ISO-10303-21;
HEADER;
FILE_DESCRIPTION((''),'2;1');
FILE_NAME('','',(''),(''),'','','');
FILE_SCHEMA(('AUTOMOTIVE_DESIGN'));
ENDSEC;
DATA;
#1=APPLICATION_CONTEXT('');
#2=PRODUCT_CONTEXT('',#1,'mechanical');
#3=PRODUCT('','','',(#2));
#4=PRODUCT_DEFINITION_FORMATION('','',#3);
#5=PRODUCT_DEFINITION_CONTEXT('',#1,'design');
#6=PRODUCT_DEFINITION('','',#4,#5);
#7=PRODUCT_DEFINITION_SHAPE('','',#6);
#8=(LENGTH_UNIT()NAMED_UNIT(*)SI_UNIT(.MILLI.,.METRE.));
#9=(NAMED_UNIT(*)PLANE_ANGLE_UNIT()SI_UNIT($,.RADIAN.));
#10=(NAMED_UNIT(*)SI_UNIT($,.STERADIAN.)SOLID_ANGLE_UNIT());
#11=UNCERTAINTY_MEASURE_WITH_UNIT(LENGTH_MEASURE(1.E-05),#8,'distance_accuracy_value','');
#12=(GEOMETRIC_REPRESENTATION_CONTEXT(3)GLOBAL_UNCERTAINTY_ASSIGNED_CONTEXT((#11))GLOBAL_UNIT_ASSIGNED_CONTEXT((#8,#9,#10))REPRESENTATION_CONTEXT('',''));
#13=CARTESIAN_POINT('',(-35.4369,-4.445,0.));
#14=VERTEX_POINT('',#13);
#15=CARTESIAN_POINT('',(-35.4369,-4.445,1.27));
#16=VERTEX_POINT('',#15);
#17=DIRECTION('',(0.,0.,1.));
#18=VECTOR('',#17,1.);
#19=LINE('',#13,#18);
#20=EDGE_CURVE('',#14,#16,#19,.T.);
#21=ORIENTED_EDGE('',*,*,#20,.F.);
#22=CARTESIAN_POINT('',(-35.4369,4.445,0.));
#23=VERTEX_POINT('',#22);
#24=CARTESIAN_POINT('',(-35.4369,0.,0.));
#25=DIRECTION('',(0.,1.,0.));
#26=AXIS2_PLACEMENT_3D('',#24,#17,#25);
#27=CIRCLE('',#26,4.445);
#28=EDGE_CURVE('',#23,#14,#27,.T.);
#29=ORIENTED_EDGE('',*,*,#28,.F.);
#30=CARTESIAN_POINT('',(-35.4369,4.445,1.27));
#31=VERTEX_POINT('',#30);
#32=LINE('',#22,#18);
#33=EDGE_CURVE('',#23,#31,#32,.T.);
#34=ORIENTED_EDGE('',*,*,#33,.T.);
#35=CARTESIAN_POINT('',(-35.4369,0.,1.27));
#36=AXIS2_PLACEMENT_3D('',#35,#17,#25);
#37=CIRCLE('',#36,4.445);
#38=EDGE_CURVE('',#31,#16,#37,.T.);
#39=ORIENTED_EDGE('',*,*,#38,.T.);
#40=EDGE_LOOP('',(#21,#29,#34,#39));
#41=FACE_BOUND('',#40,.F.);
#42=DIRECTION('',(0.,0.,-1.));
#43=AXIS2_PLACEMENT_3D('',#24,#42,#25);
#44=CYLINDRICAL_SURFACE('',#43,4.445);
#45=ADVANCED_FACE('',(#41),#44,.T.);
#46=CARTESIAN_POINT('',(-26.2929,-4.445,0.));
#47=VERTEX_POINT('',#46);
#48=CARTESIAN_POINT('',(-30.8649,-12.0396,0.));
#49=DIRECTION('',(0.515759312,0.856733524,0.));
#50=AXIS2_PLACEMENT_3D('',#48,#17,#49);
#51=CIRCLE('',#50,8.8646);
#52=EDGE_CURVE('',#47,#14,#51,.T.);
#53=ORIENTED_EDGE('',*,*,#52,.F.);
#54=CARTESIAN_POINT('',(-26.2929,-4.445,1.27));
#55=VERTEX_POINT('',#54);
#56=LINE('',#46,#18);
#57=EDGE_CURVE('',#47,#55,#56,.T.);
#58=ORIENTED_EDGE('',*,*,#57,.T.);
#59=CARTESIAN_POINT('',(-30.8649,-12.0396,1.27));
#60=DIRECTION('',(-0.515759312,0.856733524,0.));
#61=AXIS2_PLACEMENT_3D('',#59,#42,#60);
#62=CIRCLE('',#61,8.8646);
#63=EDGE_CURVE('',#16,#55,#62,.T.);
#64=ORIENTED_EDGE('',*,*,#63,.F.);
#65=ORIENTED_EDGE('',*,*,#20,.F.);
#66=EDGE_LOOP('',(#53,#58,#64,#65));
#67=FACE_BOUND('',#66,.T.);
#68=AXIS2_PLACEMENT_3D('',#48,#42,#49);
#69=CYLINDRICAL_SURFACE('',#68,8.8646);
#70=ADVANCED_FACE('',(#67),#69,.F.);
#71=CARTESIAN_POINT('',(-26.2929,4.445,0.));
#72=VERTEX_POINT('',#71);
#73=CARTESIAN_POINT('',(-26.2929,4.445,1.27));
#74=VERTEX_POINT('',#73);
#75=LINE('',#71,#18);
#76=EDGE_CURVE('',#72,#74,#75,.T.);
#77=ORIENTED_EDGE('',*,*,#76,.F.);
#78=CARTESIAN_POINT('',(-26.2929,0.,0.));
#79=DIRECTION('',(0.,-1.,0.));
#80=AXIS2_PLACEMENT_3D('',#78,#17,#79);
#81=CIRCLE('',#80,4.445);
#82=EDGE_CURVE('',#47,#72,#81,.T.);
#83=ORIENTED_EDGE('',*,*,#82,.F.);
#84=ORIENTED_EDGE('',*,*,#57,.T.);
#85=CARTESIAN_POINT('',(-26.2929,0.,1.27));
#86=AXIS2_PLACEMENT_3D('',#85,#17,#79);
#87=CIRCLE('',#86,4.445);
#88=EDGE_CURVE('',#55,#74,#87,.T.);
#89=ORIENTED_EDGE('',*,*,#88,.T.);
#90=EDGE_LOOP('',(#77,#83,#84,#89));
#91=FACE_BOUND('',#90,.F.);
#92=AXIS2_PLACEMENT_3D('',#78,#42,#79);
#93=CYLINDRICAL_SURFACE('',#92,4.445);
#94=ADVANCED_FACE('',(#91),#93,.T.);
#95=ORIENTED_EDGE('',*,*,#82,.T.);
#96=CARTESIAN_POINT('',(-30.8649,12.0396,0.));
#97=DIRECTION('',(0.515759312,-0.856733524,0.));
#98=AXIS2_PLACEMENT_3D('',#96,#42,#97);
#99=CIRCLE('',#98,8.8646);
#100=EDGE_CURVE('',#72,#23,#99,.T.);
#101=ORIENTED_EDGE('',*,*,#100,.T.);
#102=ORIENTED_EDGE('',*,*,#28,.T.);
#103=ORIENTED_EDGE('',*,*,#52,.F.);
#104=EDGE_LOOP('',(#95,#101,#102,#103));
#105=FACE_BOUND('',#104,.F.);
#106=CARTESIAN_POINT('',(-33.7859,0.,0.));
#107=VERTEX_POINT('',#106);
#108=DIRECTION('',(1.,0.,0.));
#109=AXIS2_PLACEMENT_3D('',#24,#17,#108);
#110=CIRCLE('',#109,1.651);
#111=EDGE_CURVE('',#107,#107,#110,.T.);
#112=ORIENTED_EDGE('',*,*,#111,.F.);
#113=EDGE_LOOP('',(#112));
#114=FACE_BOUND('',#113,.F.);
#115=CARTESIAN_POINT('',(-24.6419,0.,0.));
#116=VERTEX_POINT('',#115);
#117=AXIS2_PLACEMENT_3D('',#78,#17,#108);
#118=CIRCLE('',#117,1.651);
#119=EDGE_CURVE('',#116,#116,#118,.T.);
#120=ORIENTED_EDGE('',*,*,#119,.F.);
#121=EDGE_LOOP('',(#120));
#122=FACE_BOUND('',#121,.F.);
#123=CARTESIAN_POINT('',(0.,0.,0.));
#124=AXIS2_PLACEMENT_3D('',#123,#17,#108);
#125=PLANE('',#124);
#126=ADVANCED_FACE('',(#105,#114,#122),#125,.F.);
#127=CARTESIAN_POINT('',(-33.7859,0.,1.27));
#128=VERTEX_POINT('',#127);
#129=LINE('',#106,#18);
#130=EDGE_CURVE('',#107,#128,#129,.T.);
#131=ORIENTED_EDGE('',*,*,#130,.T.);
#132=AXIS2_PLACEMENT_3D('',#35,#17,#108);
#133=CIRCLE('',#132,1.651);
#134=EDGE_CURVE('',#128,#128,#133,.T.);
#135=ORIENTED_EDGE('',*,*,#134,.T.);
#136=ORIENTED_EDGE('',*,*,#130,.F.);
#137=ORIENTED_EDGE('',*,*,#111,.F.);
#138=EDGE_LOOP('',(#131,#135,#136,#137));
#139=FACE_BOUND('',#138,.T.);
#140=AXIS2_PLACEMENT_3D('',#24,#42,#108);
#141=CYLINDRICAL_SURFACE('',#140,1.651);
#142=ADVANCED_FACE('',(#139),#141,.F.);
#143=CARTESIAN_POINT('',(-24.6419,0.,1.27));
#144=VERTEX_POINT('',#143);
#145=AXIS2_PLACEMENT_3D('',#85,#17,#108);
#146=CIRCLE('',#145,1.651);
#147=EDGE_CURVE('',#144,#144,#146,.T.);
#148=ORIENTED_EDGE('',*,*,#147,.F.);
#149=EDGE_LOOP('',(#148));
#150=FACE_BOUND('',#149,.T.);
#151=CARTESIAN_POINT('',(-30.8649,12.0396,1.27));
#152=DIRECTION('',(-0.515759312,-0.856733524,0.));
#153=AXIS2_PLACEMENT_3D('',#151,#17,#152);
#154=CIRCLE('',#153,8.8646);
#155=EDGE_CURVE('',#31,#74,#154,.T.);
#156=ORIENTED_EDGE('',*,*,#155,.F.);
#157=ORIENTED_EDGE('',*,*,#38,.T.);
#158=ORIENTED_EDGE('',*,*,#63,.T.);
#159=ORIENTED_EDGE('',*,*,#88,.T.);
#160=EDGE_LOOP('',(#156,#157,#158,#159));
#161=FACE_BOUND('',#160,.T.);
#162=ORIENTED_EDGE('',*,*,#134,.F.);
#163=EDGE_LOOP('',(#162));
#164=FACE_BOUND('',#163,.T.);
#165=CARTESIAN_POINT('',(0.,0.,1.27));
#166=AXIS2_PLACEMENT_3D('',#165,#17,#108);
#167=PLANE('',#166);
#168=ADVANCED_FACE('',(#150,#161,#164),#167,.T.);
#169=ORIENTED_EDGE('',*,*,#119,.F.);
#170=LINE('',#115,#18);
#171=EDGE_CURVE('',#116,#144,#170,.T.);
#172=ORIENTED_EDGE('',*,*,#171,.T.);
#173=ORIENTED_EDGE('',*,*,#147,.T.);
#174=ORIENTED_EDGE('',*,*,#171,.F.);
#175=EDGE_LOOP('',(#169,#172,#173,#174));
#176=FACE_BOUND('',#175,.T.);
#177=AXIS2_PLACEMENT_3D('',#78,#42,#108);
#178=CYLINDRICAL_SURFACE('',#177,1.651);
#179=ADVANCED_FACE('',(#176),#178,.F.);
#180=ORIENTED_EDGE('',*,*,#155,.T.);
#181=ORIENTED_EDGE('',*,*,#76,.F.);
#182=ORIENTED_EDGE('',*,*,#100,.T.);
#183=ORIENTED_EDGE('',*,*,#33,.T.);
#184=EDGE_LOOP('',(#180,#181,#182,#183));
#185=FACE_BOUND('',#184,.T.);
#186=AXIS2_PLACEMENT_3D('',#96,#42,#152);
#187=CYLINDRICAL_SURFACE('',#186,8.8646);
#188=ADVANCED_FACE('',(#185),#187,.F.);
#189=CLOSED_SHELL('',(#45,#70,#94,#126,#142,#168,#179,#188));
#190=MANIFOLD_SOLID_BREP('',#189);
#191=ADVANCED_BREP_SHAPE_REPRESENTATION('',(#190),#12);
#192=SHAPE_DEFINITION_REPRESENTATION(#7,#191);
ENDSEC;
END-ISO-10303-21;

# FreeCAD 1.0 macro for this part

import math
import FreeCAD as App
import Part
import Sketcher

V = App.Vector
Q = App.Units.Quantity

doc = App.newDocument("Part")
params = doc.addObject("Spreadsheet::Sheet", "Params")
for row, (alias, value) in enumerate([
    ("sketch1_diameter", "0.13 in"),
    ("sketch1_radius", "0.349 in"),
    ("sketch1_radius2", "0.175 in"),
    ("pad1_length", "0.05 in"),
], start=1):
    params.set(f"A{row}", alias)
    params.set(f"B{row}", "=" + value)
    params.setAlias(f"B{row}", alias)

body = doc.addObject("PartDesign::Body", "Body")

# Sketch on XY plane
sketch1 = doc.addObject("Sketcher::SketchObject", "Sketch")
body.addObject(sketch1)
sketch1.AttachmentSupport = (doc.XY_Plane, [""])
sketch1.MapMode = "FlatFace"
sketch1.addGeometry([
    Part.ArcOfCircle(Part.Circle(V(-30.9, 12, 0), V(0, 0, 1), 8.9), math.radians(-121), math.radians(-59)),  # 0
    Part.ArcOfCircle(Part.Circle(V(-35.4, 0, 0), V(0, 0, 1), 4.4), math.radians(90), math.radians(270)),  # 1
    Part.ArcOfCircle(Part.Circle(V(-30.9, -12, 0), V(0, 0, 1), 8.9), math.radians(59), math.radians(121)),  # 2
    Part.ArcOfCircle(Part.Circle(V(-26.3, 0, 0), V(0, 0, 1), 4.4), math.radians(-90), math.radians(90)),  # 3
    Part.Circle(V(-26.3, 0, 0), V(0, 0, 1), 1.7),  # 4
    Part.Circle(V(-35.4, 0, 0), V(0, 0, 1), 1.7),  # 5
], False)
sketch1.addConstraint([
    Sketcher.Constraint("Coincident", 0, 1, 1, 1),
    Sketcher.Constraint("Coincident", 1, 2, 2, 2),
    Sketcher.Constraint("Coincident", 2, 1, 3, 1),
    Sketcher.Constraint("Coincident", 3, 2, 0, 2),
    Sketcher.Constraint("Coincident", 4, 3, 3, 3),
    Sketcher.Constraint("Coincident", 5, 3, 1, 3),
    Sketcher.Constraint("Equal", 0, 2),
    Sketcher.Constraint("Equal", 1, 3),
    Sketcher.Constraint("Equal", 4, 5),
    Sketcher.Constraint("Symmetric", 0, 3, 2, 3, -1),
    Sketcher.Constraint("PointOnObject", 1, 3, -1),
    Sketcher.Constraint("PointOnObject", 3, 3, -1),
    Sketcher.Constraint("Vertical", 5, 3, 0, 1),
    Sketcher.Constraint("Vertical", 4, 3, 2, 1),
    Sketcher.Constraint("Diameter", 4, Q("0.13 in")),
    Sketcher.Constraint("DistanceX", 1, 3, 0, 3, Q("0.18 in")),
    Sketcher.Constraint("Radius", 0, Q("0.349 in")),
    Sketcher.Constraint("Radius", 1, Q("0.175 in")),
    Sketcher.Constraint("DistanceX", 0, 3, -1, 1, 30.865),
])
sketch1.setExpression("Constraints[14]", "Params.sketch1_diameter")
sketch1.setExpression("Constraints[16]", "Params.sketch1_radius")
sketch1.setExpression("Constraints[17]", "Params.sketch1_radius2")
pad1 = doc.addObject("PartDesign::Pad", "Pad")
body.addObject(pad1)
pad1.Profile = sketch1
pad1.setExpression("Length", "Params.pad1_length")

doc.recompute()
